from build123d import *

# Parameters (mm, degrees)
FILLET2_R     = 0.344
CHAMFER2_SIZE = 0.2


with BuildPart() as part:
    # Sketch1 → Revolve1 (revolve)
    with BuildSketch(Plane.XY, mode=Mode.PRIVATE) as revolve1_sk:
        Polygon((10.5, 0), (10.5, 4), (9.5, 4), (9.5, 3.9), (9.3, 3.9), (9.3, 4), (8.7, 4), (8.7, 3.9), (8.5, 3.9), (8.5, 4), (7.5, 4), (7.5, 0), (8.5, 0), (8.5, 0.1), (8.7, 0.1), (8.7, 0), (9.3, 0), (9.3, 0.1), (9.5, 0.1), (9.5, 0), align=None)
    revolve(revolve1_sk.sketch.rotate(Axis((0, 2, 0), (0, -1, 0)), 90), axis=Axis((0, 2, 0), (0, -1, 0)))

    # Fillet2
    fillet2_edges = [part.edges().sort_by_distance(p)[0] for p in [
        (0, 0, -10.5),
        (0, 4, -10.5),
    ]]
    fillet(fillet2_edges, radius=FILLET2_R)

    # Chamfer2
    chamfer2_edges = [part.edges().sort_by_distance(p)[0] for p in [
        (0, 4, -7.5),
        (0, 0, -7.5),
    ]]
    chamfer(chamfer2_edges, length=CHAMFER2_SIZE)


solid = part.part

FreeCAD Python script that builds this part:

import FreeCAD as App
import Part
import Sketcher

V = App.Vector
Q = App.Units.Quantity


def edges_at(feature, points):
    """Names of the edges that pass closest to the given points."""
    edges = feature.Shape.Edges
    near = lambda p: min(range(len(edges)), key=lambda i: edges[i].distToShape(Part.Vertex(*p))[0])
    return sorted({f"Edge{near(p) + 1}" for p in points})


def add_polygon(sketch, points):
    """Adds a closed chain of lines whose ends are joined by coincident constraints."""
    first, n = sketch.GeometryCount, len(points)
    for a, b in zip(points, points[1:] + points[:1]):
        sketch.addGeometry(Part.LineSegment(App.Vector(*a, 0), App.Vector(*b, 0)), False)
    for i in range(n):
        sketch.addConstraint(Sketcher.Constraint("Coincident", first + i, 2, first + (i + 1) % n, 1))

doc = App.newDocument("Part")
body = doc.addObject("PartDesign::Body", "Body")

# Sketch on XY plane
sketch1 = body.newObject("Sketcher::SketchObject", "Sketch")
sketch1.AttachmentSupport = (doc.getObject("XY_Plane"), [""])
sketch1.MapMode = "FlatFace"
add_polygon(sketch1, [(10.5, 0), (10.5, 4), (9.5, 4), (9.5, 3.9), (9.3, 3.9), (9.3, 4), (8.7, 4), (8.7, 3.9), (8.5, 3.9), (8.5, 4), (7.5, 4), (7.5, 0), (8.5, 0), (8.5, 0.1), (8.7, 0.1), (8.7, 0), (9.3, 0), (9.3, 0.1), (9.5, 0.1), (9.5, 0)])  # lines 0-19
sketch1.addConstraint(Sketcher.Constraint("Vertical", 0))
sketch1.addConstraint(Sketcher.Constraint("Horizontal", 1))
sketch1.addConstraint(Sketcher.Constraint("Vertical", 2))
sketch1.addConstraint(Sketcher.Constraint("Horizontal", 3))
sketch1.addConstraint(Sketcher.Constraint("Vertical", 4))
sketch1.addConstraint(Sketcher.Constraint("Horizontal", 5))
sketch1.addConstraint(Sketcher.Constraint("Vertical", 6))
sketch1.addConstraint(Sketcher.Constraint("Horizontal", 7))
sketch1.addConstraint(Sketcher.Constraint("Vertical", 8))
sketch1.addConstraint(Sketcher.Constraint("Horizontal", 9))
sketch1.addConstraint(Sketcher.Constraint("Vertical", 10))
sketch1.addConstraint(Sketcher.Constraint("Horizontal", 11))
sketch1.addConstraint(Sketcher.Constraint("Vertical", 12))
sketch1.addConstraint(Sketcher.Constraint("Horizontal", 13))
sketch1.addConstraint(Sketcher.Constraint("Vertical", 14))
sketch1.addConstraint(Sketcher.Constraint("Horizontal", 15))
sketch1.addConstraint(Sketcher.Constraint("Vertical", 16))
sketch1.addConstraint(Sketcher.Constraint("Horizontal", 17))
sketch1.addConstraint(Sketcher.Constraint("Vertical", 18))
sketch1.addConstraint(Sketcher.Constraint("Horizontal", 19))
sketch1.addConstraint(Sketcher.Constraint("PointOnObject", 10, 2, -1))
sketch1.addConstraint(Sketcher.Constraint("PointOnObject", 14, 2, -1))
sketch1.addConstraint(Sketcher.Constraint("PointOnObject", 18, 2, -1))
sketch1.addConstraint(Sketcher.Constraint("Horizontal", 1, 2, 4, 2))
sketch1.addConstraint(Sketcher.Constraint("Horizontal", 3, 2, 6, 2))
sketch1.addConstraint(Sketcher.Constraint("Horizontal", 5, 2, 8, 2))
sketch1.addConstraint(Sketcher.Constraint("Horizontal", 13, 2, 16, 2))
sketch1.addConstraint(Sketcher.Constraint("Vertical", 8, 2, 11, 2))
sketch1.addConstraint(Sketcher.Constraint("Vertical", 6, 2, 13, 2))
sketch1.addConstraint(Sketcher.Constraint("Vertical", 4, 2, 15, 2))
sketch1.addConstraint(Sketcher.Constraint("Vertical", 2, 2, 17, 2))
sketch1.addConstraint(Sketcher.Constraint("Equal", 3, 7))
sketch1.addConstraint(Sketcher.Constraint("Equal", 1, 9))
sketch1.addConstraint(Sketcher.Constraint("Equal", 8, 12))
sketch1.addConstraint(Sketcher.Constraint("DistanceX", 1, 2, 1, 1, Q("1 mm")))
sketch1.addConstraint(Sketcher.Constraint("DistanceY", 0, 1, 0, 2, Q("4 mm")))
sketch1.addConstraint(Sketcher.Constraint("DistanceX", 3, 2, 3, 1, Q("0.2 mm")))
sketch1.addConstraint(Sketcher.Constraint("DistanceX", 5, 2, 5, 1, Q("0.6 mm")))
sketch1.addConstraint(Sketcher.Constraint("DistanceY", 2, 2, 2, 1, Q("0.1 mm")))
sketch1.addConstraint(Sketcher.Constraint("DistanceX", -1, 1, 0, 2, Q("10.5 mm")))
revolution = body.newObject("PartDesign::Revolution", "Revolution")
revolution.Profile = sketch1
revolution.ReferenceAxis = (sketch1, ["V_Axis"])
revolution.Angle = 360
doc.recompute()

fillet = body.newObject("PartDesign::Fillet", "Fillet")
fillet.Base = (revolution, edges_at(revolution, [(0, 0, -10.5), (0, 4, -10.5)]))
fillet.Radius = 0.344
doc.recompute()

chamfer = body.newObject("PartDesign::Chamfer", "Chamfer")
chamfer.Base = (fillet, edges_at(fillet, [(0, 4, -7.5), (0, 0, -7.5)]))
chamfer.Size = 0.2

doc.recompute()
